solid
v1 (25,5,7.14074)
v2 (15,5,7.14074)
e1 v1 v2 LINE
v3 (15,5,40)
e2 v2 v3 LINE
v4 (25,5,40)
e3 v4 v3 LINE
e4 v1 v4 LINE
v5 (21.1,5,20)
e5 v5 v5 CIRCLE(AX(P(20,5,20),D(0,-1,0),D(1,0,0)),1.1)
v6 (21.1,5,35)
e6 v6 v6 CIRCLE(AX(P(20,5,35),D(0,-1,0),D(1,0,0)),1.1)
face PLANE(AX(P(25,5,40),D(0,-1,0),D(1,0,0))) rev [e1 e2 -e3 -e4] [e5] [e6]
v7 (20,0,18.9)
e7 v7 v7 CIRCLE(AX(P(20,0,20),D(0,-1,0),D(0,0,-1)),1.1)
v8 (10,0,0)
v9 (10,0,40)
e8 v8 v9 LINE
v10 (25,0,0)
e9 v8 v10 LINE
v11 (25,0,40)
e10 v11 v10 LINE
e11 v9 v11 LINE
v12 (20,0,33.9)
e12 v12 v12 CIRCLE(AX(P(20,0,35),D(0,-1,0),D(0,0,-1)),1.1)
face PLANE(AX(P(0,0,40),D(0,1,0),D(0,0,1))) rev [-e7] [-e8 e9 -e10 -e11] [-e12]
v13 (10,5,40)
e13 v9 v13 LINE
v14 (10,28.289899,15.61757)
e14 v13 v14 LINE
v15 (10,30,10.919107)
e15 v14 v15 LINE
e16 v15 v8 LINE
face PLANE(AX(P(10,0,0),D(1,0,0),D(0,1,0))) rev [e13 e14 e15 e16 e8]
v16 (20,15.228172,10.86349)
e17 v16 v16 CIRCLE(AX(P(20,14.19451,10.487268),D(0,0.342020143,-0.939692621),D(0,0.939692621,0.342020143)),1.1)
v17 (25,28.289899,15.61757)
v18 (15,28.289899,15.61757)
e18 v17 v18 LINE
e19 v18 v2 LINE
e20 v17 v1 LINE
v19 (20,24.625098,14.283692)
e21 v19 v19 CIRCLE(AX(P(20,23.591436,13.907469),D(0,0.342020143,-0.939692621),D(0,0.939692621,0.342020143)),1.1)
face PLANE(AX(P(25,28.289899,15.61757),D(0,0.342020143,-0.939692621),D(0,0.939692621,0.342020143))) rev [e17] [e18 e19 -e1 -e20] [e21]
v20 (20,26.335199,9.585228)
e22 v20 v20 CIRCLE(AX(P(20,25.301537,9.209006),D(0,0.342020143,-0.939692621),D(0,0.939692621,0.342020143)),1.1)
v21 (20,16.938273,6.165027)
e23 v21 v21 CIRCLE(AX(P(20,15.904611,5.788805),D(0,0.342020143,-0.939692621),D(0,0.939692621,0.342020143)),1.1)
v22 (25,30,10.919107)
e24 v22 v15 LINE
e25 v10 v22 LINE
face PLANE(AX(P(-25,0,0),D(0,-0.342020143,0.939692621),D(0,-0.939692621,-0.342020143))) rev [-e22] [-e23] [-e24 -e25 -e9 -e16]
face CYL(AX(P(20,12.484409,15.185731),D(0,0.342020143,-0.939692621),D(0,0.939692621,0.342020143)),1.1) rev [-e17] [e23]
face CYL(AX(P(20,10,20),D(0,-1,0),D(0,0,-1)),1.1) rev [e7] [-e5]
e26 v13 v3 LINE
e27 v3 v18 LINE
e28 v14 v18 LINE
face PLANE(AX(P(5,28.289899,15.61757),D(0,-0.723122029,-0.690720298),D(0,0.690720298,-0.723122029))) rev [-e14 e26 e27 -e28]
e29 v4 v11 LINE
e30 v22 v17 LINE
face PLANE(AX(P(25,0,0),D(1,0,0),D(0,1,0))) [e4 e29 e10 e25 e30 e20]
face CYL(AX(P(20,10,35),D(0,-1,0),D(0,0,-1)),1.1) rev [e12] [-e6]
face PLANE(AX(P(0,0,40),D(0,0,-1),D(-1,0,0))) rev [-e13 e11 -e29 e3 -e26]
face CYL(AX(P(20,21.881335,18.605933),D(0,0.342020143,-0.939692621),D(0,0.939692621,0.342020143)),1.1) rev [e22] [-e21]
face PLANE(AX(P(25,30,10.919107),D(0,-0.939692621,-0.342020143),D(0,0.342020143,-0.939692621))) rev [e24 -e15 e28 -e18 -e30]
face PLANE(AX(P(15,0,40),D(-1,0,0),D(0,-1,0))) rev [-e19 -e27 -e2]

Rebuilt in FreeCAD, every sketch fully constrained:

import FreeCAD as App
import Part
import Sketcher
from FreeCAD import Vector
Q = App.Units.Quantity


def add_polygon(sketch, points):
    """Adds a closed chain of lines whose ends are joined by coincident constraints."""
    first, n = sketch.GeometryCount, len(points)
    for a, b in zip(points, points[1:] + points[:1]):
        sketch.addGeometry(Part.LineSegment(App.Vector(*a, 0), App.Vector(*b, 0)), False)
    for i in range(n):
        sketch.addConstraint(Sketcher.Constraint("Coincident", first + i, 2, first + (i + 1) % n, 1))

doc = App.newDocument("Part")
body = doc.addObject("PartDesign::Body", "Body")

# Sketch on XY plane
sketch1 = body.newObject("Sketcher::SketchObject", "Sketch")
sketch1.AttachmentSupport = (doc.getObject("XY_Plane"), [""])
sketch1.MapMode = "FlatFace"
add_polygon(sketch1, [(0, 30), (0, 0), (15, 0), (15, 30)])  # lines 0-3
sketch1.addConstraint(Sketcher.Constraint("Vertical", 0))
sketch1.addConstraint(Sketcher.Constraint("Horizontal", 1))
sketch1.addConstraint(Sketcher.Constraint("Vertical", 2))
sketch1.addConstraint(Sketcher.Constraint("Horizontal", 3))
sketch1.addConstraint(Sketcher.Constraint("Coincident", 0, 2, -1, 1))
sketch1.addConstraint(Sketcher.Constraint("DistanceX", 1, 1, 1, 2, 15.0))
sketch1.addConstraint(Sketcher.Constraint("DistanceY", 0, 2, 0, 1, 30.0))
pad1 = body.newObject("PartDesign::Pad", "Pad")
pad1.Profile = sketch1
pad1.Length = 40

# Sketch on YZ plane
sketch2 = body.newObject("Sketcher::SketchObject", "Sketch001")
sketch2.AttachmentSupport = (doc.getObject("YZ_Plane"), [""])
sketch2.MapMode = "FlatFace"
sketch2.AttachmentOffset = App.Placement(Vector(0, 0, 15), App.Rotation())
add_polygon(sketch2, [(30, 11), (0, 0), (30, 0)])  # lines 0-2
sketch2.addConstraint(Sketcher.Constraint("Horizontal", 1))
sketch2.addConstraint(Sketcher.Constraint("Vertical", 2))
sketch2.addConstraint(Sketcher.Constraint("Coincident", 0, 2, -1, 1))
sketch2.addConstraint(Sketcher.Constraint("DistanceX", 1, 1, 1, 2, 30.0))
sketch2.addConstraint(Sketcher.Constraint("Angle", 0, Q("-160 deg")))
pocket1 = body.newObject("PartDesign::Pocket", "Pocket")
pocket1.Profile = sketch2
pocket1.Length = 40

# Sketch on YZ plane
sketch3 = body.newObject("Sketcher::SketchObject", "Sketch002")
sketch3.AttachmentSupport = (doc.getObject("YZ_Plane"), [""])
sketch3.MapMode = "FlatFace"
sketch3.AttachmentOffset = App.Placement(Vector(0, 0, 15), App.Rotation())
add_polygon(sketch3, [(30, 11), (28, 16), (5, 7), (5, 40), (0, 40), (0, 0)])  # lines 0-5
sketch3.addConstraint(Sketcher.Constraint("Vertical", 2))
sketch3.addConstraint(Sketcher.Constraint("Horizontal", 3))
sketch3.addConstraint(Sketcher.Constraint("Vertical", 4))
sketch3.addConstraint(Sketcher.Constraint("Coincident", 4, 2, -1, 1))
sketch3.addConstraint(Sketcher.Constraint("Perpendicular", 0, 1))
sketch3.addConstraint(Sketcher.Constraint("Parallel", 1, 5))
sketch3.addConstraint(Sketcher.Constraint("DistanceX", 3, 2, 3, 1, 5.0))
sketch3.addConstraint(Sketcher.Constraint("DistanceY", 4, 2, 4, 1, 40.0))
sketch3.addConstraint(Sketcher.Constraint("Angle", 0, Q("110 deg")))
sketch3.addConstraint(Sketcher.Constraint("Distance", 0, 5.0))
sketch3.addConstraint(Sketcher.Constraint("DistanceX", -1, 1, 5, 2, 30.0))
pad2 = body.newObject("PartDesign::Pad", "Pad001")
pad2.Profile = sketch3
pad2.Length = 10

# Sketch on YZ plane
sketch4 = body.newObject("Sketcher::SketchObject", "Sketch003")
sketch4.AttachmentSupport = (doc.getObject("YZ_Plane"), [""])
sketch4.MapMode = "FlatFace"
add_polygon(sketch4, [(30, 40), (30, 11), (0, 0), (0, 40)])  # lines 0-3
sketch4.addConstraint(Sketcher.Constraint("Vertical", 0))
sketch4.addConstraint(Sketcher.Constraint("Vertical", 2))
sketch4.addConstraint(Sketcher.Constraint("Horizontal", 3))
sketch4.addConstraint(Sketcher.Constraint("Coincident", 1, 2, -1, 1))
sketch4.addConstraint(Sketcher.Constraint("DistanceX", 3, 1, 3, 2, 30.0))
sketch4.addConstraint(Sketcher.Constraint("DistanceY", 2, 1, 2, 2, 40.0))
sketch4.addConstraint(Sketcher.Constraint("Angle", 1, Q("-160 deg")))
pocket2 = body.newObject("PartDesign::Pocket", "Pocket001")
pocket2.Profile = sketch4
pocket2.Length = 10
pocket2.Reversed = True

# Sketch on YZ plane
sketch5 = body.newObject("Sketcher::SketchObject", "Sketch004")
sketch5.AttachmentSupport = (doc.getObject("YZ_Plane"), [""])
sketch5.MapMode = "FlatFace"
sketch5.AttachmentOffset = App.Placement(Vector(0, 0, 15), App.Rotation())
add_polygon(sketch5, [(5, 40), (28, 16), (30, 11), (30, 40)])  # lines 0-3
sketch5.addConstraint(Sketcher.Constraint("Vertical", 2))
sketch5.addConstraint(Sketcher.Constraint("Horizontal", 3))
sketch5.addConstraint(Sketcher.Constraint("DistanceX", 3, 2, 3, 1, 25.0))
sketch5.addConstraint(Sketcher.Constraint("Angle", 1, Q("-70 deg")))
sketch5.addConstraint(Sketcher.Constraint("Distance", 1, 5.0))
sketch5.addConstraint(Sketcher.Constraint("DistanceX", -1, 1, 1, 2, 30.0))
sketch5.addConstraint(Sketcher.Constraint("DistanceY", -1, 1, 2, 2, 40.0))
sketch5.addConstraint(Sketcher.Constraint("Distance", 0, 33.718278))
pocket3 = body.newObject("PartDesign::Pocket", "Pocket002")
pocket3.Profile = sketch5
pocket3.Length = 10

# Sketch on XZ plane
sketch6 = body.newObject("Sketcher::SketchObject", "Sketch005")
sketch6.AttachmentSupport = (doc.getObject("XZ_Plane"), [""])
sketch6.MapMode = "FlatFace"
sketch6.addGeometry(Part.Circle(Vector(20, 35, 0), Vector(0, 0, 1), 1.1), False)
sketch6.addGeometry(Part.Circle(Vector(20, 20, 0), Vector(0, 0, 1), 1.1), False)
sketch6.addConstraint(Sketcher.Constraint("Equal", 0, 1))
sketch6.addConstraint(Sketcher.Constraint("Vertical", 0, 3, 1, 3))
sketch6.addConstraint(Sketcher.Constraint("Diameter", 0, 2.2))
sketch6.addConstraint(Sketcher.Constraint("DistanceX", -1, 1, 0, 3, 20.0))
sketch6.addConstraint(Sketcher.Constraint("DistanceY", -1, 1, 0, 3, 35.0))
sketch6.addConstraint(Sketcher.Constraint("DistanceY", -1, 1, 1, 3, 20.0))
pocket4 = body.newObject("PartDesign::Pocket", "Pocket003")
pocket4.Profile = sketch6
pocket4.Length = 10

# Sketch on an angled plane
sketch7 = body.newObject("Sketcher::SketchObject", "Sketch006")
sketch7.Placement = App.Placement(Vector(0, 0, 0), App.Rotation(Vector(-1, 0, 0), Vector(0, 0.939692621, 0.342020143), Vector(0, 0.342020143, -0.939692621), "ZXY"))
sketch7.addGeometry(Part.Circle(Vector(-20, 26.9, 0), Vector(0, 0, 1), 1.1), False)
sketch7.addGeometry(Part.Circle(Vector(-20, 16.9, 0), Vector(0, 0, 1), 1.1), False)
sketch7.addConstraint(Sketcher.Constraint("Equal", 0, 1))
sketch7.addConstraint(Sketcher.Constraint("Vertical", 0, 3, 1, 3))
sketch7.addConstraint(Sketcher.Constraint("Diameter", 0, 2.2))
sketch7.addConstraint(Sketcher.Constraint("DistanceX", 0, 3, -1, 1, 20.0))
sketch7.addConstraint(Sketcher.Constraint("DistanceY", 1, 3, 0, 3, 10.0))
sketch7.addConstraint(Sketcher.Constraint("DistanceY", -1, 1, 0, 3, 26.925333))
pocket5 = body.newObject("PartDesign::Pocket", "Pocket004")
pocket5.Profile = sketch7
pocket5.Length = 10

doc.recompute()
